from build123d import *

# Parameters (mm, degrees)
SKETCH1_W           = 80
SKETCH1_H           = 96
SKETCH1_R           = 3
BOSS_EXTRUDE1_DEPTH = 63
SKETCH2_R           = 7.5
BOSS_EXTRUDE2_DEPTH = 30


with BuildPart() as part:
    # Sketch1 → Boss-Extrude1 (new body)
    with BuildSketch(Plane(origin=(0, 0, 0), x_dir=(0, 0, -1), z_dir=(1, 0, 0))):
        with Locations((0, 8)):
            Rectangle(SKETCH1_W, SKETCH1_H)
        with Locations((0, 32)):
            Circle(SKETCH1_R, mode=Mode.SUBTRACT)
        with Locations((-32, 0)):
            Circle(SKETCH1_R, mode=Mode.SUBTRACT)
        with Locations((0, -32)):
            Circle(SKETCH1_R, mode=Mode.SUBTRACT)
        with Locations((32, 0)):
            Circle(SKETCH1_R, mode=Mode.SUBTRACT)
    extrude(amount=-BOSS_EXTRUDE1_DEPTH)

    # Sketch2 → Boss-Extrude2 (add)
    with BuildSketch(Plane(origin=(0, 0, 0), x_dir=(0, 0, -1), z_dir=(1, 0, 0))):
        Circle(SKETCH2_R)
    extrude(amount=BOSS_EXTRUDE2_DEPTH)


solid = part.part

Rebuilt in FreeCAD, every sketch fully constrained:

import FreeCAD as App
import Part
import Sketcher
from FreeCAD import Vector

doc = App.newDocument("Part")
body = doc.addObject("PartDesign::Body", "Body")

# Sketch on YZ plane
sketch1 = body.newObject("Sketcher::SketchObject", "Sketch")
sketch1.AttachmentSupport = (doc.getObject("YZ_Plane"), [""])
sketch1.MapMode = "FlatFace"
sketch1.addGeometry([
    Part.LineSegment(Vector(56, 40, 0), Vector(-40, 40, 0)),  # 0
    Part.LineSegment(Vector(-40, 40, 0), Vector(-40, -40, 0)),  # 1
    Part.LineSegment(Vector(-40, -40, 0), Vector(56, -40, 0)),  # 2
    Part.LineSegment(Vector(56, -40, 0), Vector(56, 40, 0)),  # 3
    Part.Circle(Vector(-32, 0, 0), Vector(0, 0, 1), 3),  # 4
    Part.Circle(Vector(0, 32, 0), Vector(0, 0, 1), 3),  # 5
    Part.Circle(Vector(0, -32, 0), Vector(0, 0, 1), 3),  # 6
    Part.Circle(Vector(32, 0, 0), Vector(0, 0, 1), 3),  # 7
], False)
sketch1.addConstraint([
    Sketcher.Constraint("Coincident", 0, 2, 1, 1),
    Sketcher.Constraint("Coincident", 1, 2, 2, 1),
    Sketcher.Constraint("Coincident", 2, 2, 3, 1),
    Sketcher.Constraint("Coincident", 3, 2, 0, 1),
    Sketcher.Constraint("Horizontal", 0),
    Sketcher.Constraint("Vertical", 1),
    Sketcher.Constraint("Horizontal", 2),
    Sketcher.Constraint("Vertical", 3),
    Sketcher.Constraint("Equal", 4, 5),
    Sketcher.Constraint("Equal", 5, 6),
    Sketcher.Constraint("Equal", 6, 7),
    Sketcher.Constraint("Symmetric", 5, 3, 6, 3, -1, 1),
    Sketcher.Constraint("Symmetric", 4, 3, 7, 3, -1, 1),
    Sketcher.Constraint("PointOnObject", 4, 3, -1),
    Sketcher.Constraint("PointOnObject", 5, 3, -2),
    Sketcher.Constraint("Diameter", 4, 6.0),
    Sketcher.Constraint("DistanceX", 0, 2, 0, 1, 96.0),
    Sketcher.Constraint("DistanceY", 1, 2, 1, 1, 80.0),
    Sketcher.Constraint("DistanceX", 4, 3, -1, 1, 32.0),
    Sketcher.Constraint("DistanceY", -1, 1, 5, 3, 32.0),
    Sketcher.Constraint("DistanceX", 0, 2, -1, 1, 40.0),
    Sketcher.Constraint("DistanceY", -1, 1, 0, 2, 40.0),
])
pad1 = body.newObject("PartDesign::Pad", "Pad")
pad1.Profile = sketch1
pad1.Length = 63
pad1.Reversed = True

# Sketch on YZ plane
sketch2 = body.newObject("Sketcher::SketchObject", "Sketch001")
sketch2.AttachmentSupport = (doc.getObject("YZ_Plane"), [""])
sketch2.MapMode = "FlatFace"
sketch2.addGeometry(Part.Circle(Vector(0, 0, 0), Vector(0, 0, 1), 8), False)
sketch2.addConstraint([
    Sketcher.Constraint("Coincident", 0, 3, -1, 1),
    Sketcher.Constraint("Diameter", 0, 15.0),
])
pad2 = body.newObject("PartDesign::Pad", "Pad001")
pad2.Profile = sketch2
pad2.Length = 30

doc.recompute()
